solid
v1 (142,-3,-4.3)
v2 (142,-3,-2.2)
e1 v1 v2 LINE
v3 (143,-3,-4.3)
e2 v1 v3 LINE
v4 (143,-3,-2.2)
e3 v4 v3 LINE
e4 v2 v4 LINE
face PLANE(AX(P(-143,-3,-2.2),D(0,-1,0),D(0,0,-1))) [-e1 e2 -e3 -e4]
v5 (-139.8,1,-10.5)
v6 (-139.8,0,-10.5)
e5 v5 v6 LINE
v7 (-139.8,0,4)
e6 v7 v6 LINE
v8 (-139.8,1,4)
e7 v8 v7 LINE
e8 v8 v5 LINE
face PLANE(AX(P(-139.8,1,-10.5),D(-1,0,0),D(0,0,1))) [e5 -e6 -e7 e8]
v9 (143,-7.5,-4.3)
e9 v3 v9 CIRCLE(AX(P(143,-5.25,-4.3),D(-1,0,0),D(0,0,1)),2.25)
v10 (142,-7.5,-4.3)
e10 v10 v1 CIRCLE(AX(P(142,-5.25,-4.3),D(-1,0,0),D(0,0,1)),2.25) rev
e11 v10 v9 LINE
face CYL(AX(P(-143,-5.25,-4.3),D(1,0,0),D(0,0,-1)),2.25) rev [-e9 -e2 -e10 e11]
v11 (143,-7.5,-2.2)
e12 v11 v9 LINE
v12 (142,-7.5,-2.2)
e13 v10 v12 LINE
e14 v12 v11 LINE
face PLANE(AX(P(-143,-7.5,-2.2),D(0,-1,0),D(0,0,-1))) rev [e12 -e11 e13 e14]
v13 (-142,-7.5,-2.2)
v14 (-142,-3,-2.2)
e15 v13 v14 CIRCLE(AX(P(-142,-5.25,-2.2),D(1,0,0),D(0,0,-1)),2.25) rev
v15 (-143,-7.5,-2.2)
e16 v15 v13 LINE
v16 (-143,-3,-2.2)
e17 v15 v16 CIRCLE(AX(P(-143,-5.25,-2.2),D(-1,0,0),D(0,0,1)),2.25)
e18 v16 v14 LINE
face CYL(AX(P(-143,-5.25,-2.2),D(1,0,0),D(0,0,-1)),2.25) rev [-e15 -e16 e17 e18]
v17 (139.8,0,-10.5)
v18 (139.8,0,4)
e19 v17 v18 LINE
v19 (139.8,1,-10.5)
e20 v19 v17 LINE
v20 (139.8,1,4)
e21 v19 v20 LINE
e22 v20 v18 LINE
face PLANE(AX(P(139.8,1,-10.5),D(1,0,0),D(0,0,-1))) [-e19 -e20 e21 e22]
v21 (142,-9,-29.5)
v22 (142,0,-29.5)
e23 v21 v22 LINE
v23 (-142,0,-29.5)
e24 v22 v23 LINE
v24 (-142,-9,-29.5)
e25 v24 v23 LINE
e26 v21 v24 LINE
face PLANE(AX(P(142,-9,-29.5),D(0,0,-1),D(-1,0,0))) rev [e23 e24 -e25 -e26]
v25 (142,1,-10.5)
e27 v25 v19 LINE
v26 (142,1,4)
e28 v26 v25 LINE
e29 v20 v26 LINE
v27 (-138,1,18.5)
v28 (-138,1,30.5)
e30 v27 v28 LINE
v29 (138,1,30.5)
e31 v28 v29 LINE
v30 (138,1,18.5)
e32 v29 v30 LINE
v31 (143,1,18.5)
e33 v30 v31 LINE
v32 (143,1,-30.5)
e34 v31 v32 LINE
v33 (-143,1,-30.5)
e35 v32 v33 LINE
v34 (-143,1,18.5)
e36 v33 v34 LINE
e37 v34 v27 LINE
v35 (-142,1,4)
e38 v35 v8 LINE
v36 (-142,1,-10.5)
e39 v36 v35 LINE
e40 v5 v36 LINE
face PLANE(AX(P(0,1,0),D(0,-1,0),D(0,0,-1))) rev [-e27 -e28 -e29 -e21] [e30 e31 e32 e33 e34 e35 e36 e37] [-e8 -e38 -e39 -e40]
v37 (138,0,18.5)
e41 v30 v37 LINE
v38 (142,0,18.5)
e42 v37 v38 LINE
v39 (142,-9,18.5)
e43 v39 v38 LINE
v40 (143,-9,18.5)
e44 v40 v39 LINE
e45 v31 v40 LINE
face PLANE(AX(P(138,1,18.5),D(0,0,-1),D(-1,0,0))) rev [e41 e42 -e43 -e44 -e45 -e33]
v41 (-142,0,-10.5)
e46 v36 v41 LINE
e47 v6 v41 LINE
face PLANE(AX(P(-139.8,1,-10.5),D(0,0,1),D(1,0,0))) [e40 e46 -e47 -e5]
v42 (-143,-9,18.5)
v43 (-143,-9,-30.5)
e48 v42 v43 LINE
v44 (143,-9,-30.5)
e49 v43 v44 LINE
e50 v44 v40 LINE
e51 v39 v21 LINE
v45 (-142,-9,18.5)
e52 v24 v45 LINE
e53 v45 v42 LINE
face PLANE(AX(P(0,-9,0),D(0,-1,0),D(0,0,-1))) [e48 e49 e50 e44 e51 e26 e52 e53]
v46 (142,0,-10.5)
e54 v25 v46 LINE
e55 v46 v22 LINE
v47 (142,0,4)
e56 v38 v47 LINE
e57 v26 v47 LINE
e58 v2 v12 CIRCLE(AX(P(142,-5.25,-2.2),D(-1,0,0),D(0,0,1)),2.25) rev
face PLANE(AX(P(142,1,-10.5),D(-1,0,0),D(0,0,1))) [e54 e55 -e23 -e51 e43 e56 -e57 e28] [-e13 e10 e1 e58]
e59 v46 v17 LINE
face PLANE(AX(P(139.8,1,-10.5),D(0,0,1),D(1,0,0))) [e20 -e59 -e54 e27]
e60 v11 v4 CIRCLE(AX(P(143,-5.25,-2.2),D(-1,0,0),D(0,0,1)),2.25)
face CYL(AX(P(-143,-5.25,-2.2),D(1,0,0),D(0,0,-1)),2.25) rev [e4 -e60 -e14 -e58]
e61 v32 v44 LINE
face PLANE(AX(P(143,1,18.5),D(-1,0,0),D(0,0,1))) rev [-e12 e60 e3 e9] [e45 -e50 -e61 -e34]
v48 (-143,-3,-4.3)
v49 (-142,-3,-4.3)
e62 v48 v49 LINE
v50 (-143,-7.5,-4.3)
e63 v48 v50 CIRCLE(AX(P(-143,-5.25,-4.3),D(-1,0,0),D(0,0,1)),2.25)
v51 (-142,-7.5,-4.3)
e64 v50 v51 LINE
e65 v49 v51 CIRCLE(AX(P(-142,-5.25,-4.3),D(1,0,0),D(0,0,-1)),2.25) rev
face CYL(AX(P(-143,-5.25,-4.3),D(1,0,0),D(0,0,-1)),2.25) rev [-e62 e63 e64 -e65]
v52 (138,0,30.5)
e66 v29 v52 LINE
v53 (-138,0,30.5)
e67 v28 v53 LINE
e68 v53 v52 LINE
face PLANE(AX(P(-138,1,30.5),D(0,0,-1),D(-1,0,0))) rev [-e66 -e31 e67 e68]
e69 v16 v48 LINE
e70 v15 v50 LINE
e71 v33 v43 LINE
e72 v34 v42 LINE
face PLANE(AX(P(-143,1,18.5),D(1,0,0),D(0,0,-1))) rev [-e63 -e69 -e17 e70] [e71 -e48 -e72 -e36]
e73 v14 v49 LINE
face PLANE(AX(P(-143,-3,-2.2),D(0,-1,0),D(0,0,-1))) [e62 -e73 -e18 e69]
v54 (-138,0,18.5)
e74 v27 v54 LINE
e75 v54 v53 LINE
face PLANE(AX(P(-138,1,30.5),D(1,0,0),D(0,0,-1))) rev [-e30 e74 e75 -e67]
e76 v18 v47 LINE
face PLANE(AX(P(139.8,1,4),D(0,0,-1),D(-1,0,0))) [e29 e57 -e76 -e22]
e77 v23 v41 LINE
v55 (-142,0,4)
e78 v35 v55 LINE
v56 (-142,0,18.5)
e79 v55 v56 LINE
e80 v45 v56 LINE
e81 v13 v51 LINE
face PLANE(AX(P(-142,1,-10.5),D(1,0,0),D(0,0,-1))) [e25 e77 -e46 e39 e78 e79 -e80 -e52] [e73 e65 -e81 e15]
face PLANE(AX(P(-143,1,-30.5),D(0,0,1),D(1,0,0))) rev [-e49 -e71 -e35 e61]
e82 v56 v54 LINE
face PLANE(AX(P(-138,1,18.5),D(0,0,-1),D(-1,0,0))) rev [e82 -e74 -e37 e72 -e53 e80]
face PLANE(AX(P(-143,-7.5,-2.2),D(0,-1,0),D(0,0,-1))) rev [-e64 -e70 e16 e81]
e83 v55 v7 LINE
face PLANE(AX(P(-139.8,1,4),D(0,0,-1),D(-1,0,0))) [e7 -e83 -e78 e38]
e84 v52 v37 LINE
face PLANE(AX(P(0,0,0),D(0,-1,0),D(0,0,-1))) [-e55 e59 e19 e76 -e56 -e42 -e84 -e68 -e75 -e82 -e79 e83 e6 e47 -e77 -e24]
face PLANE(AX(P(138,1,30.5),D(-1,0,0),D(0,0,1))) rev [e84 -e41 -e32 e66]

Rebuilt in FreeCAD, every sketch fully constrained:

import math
import FreeCAD as App
import Part
import Sketcher

V = App.Vector

doc = App.newDocument("Part")
body = doc.addObject("PartDesign::Body", "Body")

sketch1 = body.newObject("Sketcher::SketchObject", "Sketch")
sketch1.AttachmentSupport = (doc.getObject("XZ_Plane"), [""])
sketch1.MapMode = "FlatFace"
sketch1.addGeometry([
    Part.LineSegment(V(138, 30.5, 0), V(138, 18.5, 0)),
    Part.LineSegment(V(138, 18.5, 0), V(143, 18.5, 0)),
    Part.LineSegment(V(143, 18.5, 0), V(143, -30.5, 0)),
    Part.LineSegment(V(143, -30.5, 0), V(-143, -30.5, 0)),
    Part.LineSegment(V(-143, -30.5, 0), V(-143, 18.5, 0)),
    Part.LineSegment(V(-143, 18.5, 0), V(-138, 18.5, 0)),
    Part.LineSegment(V(-138, 18.5, 0), V(-138, 30.5, 0)),
    Part.LineSegment(V(-138, 30.5, 0), V(138, 30.5, 0)),
    Part.LineSegment(V(-139.8, 4, 0), V(-142, 4, 0)),
    Part.LineSegment(V(-142, 4, 0), V(-142, -10.5, 0)),
    Part.LineSegment(V(-142, -10.5, 0), V(-139.8, -10.5, 0)),
    Part.LineSegment(V(-139.8, -10.5, 0), V(-139.8, 4, 0)),
    Part.LineSegment(V(142, 4, 0), V(139.8, 4, 0)),
    Part.LineSegment(V(139.8, 4, 0), V(139.8, -10.5, 0)),
    Part.LineSegment(V(139.8, -10.5, 0), V(142, -10.5, 0)),
    Part.LineSegment(V(142, -10.5, 0), V(142, 4, 0)),
], False)
sketch1.addConstraint([
    Sketcher.Constraint("Coincident", 0, 2, 1, 1),
    Sketcher.Constraint("Coincident", 1, 2, 2, 1),
    Sketcher.Constraint("Coincident", 2, 2, 3, 1),
    Sketcher.Constraint("Coincident", 3, 2, 4, 1),
    Sketcher.Constraint("Coincident", 4, 2, 5, 1),
    Sketcher.Constraint("Coincident", 5, 2, 6, 1),
    Sketcher.Constraint("Coincident", 6, 2, 7, 1),
    Sketcher.Constraint("Coincident", 7, 2, 0, 1),
    Sketcher.Constraint("Coincident", 8, 2, 9, 1),
    Sketcher.Constraint("Coincident", 9, 2, 10, 1),
    Sketcher.Constraint("Coincident", 10, 2, 11, 1),
    Sketcher.Constraint("Coincident", 11, 2, 8, 1),
    Sketcher.Constraint("Coincident", 12, 2, 13, 1),
    Sketcher.Constraint("Coincident", 13, 2, 14, 1),
    Sketcher.Constraint("Coincident", 14, 2, 15, 1),
    Sketcher.Constraint("Coincident", 15, 2, 12, 1),
    Sketcher.Constraint("Vertical", 0),
    Sketcher.Constraint("Horizontal", 1),
    Sketcher.Constraint("Vertical", 2),
    Sketcher.Constraint("Horizontal", 3),
    Sketcher.Constraint("Vertical", 4),
    Sketcher.Constraint("Horizontal", 5),
    Sketcher.Constraint("Vertical", 6),
    Sketcher.Constraint("Horizontal", 7),
    Sketcher.Constraint("Horizontal", 8),
    Sketcher.Constraint("Vertical", 9),
    Sketcher.Constraint("Horizontal", 10),
    Sketcher.Constraint("Vertical", 11),
    Sketcher.Constraint("Horizontal", 12),
    Sketcher.Constraint("Vertical", 13),
    Sketcher.Constraint("Horizontal", 14),
    Sketcher.Constraint("Vertical", 15),
    Sketcher.Constraint("Symmetric", 1, 2, 4, 2, -2),
    Sketcher.Constraint("Symmetric", 11, 2, 12, 2, -2),
    Sketcher.Constraint("Symmetric", 9, 2, 14, 2, -2),
    Sketcher.Constraint("Equal", 1, 5),
    Sketcher.Constraint("DistanceX", 1, 1, 1, 2, 5.0),
    Sketcher.Constraint("DistanceX", 3, 2, 3, 1, 286.0),
    Sketcher.Constraint("DistanceY", 0, 2, 0, 1, 12.0),
    Sketcher.Constraint("DistanceY", 2, 2, 2, 1, 49.0),
    Sketcher.Constraint("DistanceX", 8, 2, 8, 1, 2.2),
    Sketcher.Constraint("DistanceY", 9, 2, 9, 1, 14.5),
    Sketcher.Constraint("DistanceX", 8, 2, -1, 1, 142.0),
    Sketcher.Constraint("DistanceY", -1, 1, 8, 2, 4.0),
    Sketcher.Constraint("DistanceY", 3, 2, 9, 2, 20.0),
])
pad1 = body.newObject("PartDesign::Pad", "Pad")
pad1.Profile = sketch1
pad1.Length = 1
pad1.Reversed = True

sketch2 = body.newObject("Sketcher::SketchObject", "Sketch001")
sketch2.AttachmentSupport = (doc.getObject("XZ_Plane"), [""])
sketch2.MapMode = "FlatFace"
sketch2.addGeometry([
    Part.LineSegment(V(-143, 18.5, 0), V(-143, -30.5, 0)),
    Part.LineSegment(V(-143, -30.5, 0), V(143, -30.5, 0)),
    Part.LineSegment(V(143, -30.5, 0), V(143, 18.5, 0)),
    Part.LineSegment(V(143, 18.5, 0), V(142, 18.5, 0)),
    Part.LineSegment(V(142, 18.5, 0), V(142, -29.5, 0)),
    Part.LineSegment(V(142, -29.5, 0), V(-142, -29.5, 0)),
    Part.LineSegment(V(-142, -29.5, 0), V(-142, 18.5, 0)),
    Part.LineSegment(V(-142, 18.5, 0), V(-143, 18.5, 0)),
], False)
sketch2.addConstraint([
    Sketcher.Constraint("Coincident", 0, 2, 1, 1),
    Sketcher.Constraint("Coincident", 1, 2, 2, 1),
    Sketcher.Constraint("Coincident", 2, 2, 3, 1),
    Sketcher.Constraint("Coincident", 3, 2, 4, 1),
    Sketcher.Constraint("Coincident", 4, 2, 5, 1),
    Sketcher.Constraint("Coincident", 5, 2, 6, 1),
    Sketcher.Constraint("Coincident", 6, 2, 7, 1),
    Sketcher.Constraint("Coincident", 7, 2, 0, 1),
    Sketcher.Constraint("Vertical", 0),
    Sketcher.Constraint("Horizontal", 1),
    Sketcher.Constraint("Vertical", 2),
    Sketcher.Constraint("Horizontal", 3),
    Sketcher.Constraint("Vertical", 4),
    Sketcher.Constraint("Horizontal", 5),
    Sketcher.Constraint("Vertical", 6),
    Sketcher.Constraint("Horizontal", 7),
    Sketcher.Constraint("Symmetric", 3, 2, 6, 2, -2),
    Sketcher.Constraint("Equal", 3, 7),
    Sketcher.Constraint("DistanceX", 1, 1, 1, 2, 286.0),
    Sketcher.Constraint("DistanceX", 3, 2, 3, 1, 1.0),
    Sketcher.Constraint("DistanceY", 0, 2, 0, 1, 49.0),
    Sketcher.Constraint("DistanceY", 4, 2, 4, 1, 48.0),
    Sketcher.Constraint("DistanceY", 0, 2, -1, 1, 30.5),
])
pad2 = body.newObject("PartDesign::Pad", "Pad001")
pad2.Profile = sketch2
pad2.Length = 9

sketch3 = body.newObject("Sketcher::SketchObject", "Sketch002")
sketch3.AttachmentSupport = (doc.getObject("YZ_Plane"), [""])
sketch3.MapMode = "FlatFace"
sketch3.AttachmentOffset = App.Placement(V(0, 0, 143), App.Rotation())
sketch3.addGeometry([
    Part.LineSegment(V(-3, -4.3, 0), V(-3, -2.2, 0)),
    Part.ArcOfCircle(Part.Circle(V(-5.2, -2.2, 0), V(0, 0, 1), 2.2), math.radians(0), math.radians(180)),
    Part.LineSegment(V(-7.5, -2.2, 0), V(-7.5, -4.3, 0)),
    Part.ArcOfCircle(Part.Circle(V(-5.2, -4.3, 0), V(0, 0, 1), 2.2), math.radians(180), math.radians(360)),
], False)
sketch3.addConstraint([
    Sketcher.Constraint("Tangent", 0, 2, 1, 1),
    Sketcher.Constraint("Tangent", 1, 2, 2, 1),
    Sketcher.Constraint("Tangent", 2, 2, 3, 1),
    Sketcher.Constraint("Tangent", 3, 2, 0, 1),
    Sketcher.Constraint("Vertical", 0),
    Sketcher.Constraint("Vertical", 2),
    Sketcher.Constraint("Radius", 1, 2.25),
    Sketcher.Constraint("DistanceY", 0, 1, 0, 2, 2.1),
    Sketcher.Constraint("DistanceX", 0, 2, -1, 1, 3.0),
    Sketcher.Constraint("DistanceY", 1, 3, -1, 1, 2.2),
])
pocket1 = body.newObject("PartDesign::Pocket", "Pocket")
pocket1.Profile = sketch3
pocket1.Type = "ThroughAll"

doc.recompute()
